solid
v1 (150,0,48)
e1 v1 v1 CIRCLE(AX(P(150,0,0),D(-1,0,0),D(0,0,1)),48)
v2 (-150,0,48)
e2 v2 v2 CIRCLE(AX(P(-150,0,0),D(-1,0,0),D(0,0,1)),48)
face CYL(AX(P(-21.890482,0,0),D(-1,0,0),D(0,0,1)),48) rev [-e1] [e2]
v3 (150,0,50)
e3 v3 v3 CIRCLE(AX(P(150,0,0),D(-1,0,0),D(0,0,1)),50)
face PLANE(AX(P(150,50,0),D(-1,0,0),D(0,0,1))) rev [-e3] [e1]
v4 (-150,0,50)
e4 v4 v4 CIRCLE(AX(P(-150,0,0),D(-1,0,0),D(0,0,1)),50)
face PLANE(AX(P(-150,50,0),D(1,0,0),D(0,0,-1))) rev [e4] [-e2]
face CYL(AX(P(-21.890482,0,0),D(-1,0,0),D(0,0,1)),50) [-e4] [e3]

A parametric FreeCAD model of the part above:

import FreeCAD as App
import Part
import Sketcher

V = App.Vector
Q = App.Units.Quantity

doc = App.newDocument("Part")
body = doc.addObject("PartDesign::Body", "Body")

# Sketch on XY plane
sketch1 = doc.addObject("Sketcher::SketchObject", "Sketch")
body.addObject(sketch1)
sketch1.AttachmentSupport = (doc.XY_Plane, [""])
sketch1.MapMode = "FlatFace"
sketch1.addGeometry(Part.LineSegment(V(-150, 50, 0), V(-150, 48, 0)), False)
sketch1.addGeometry(Part.LineSegment(V(-150, 48, 0), V(150, 48, 0)), False)
sketch1.addGeometry(Part.LineSegment(V(150, 48, 0), V(150, 50, 0)), False)
sketch1.addGeometry(Part.LineSegment(V(150, 50, 0), V(-150, 50, 0)), False)
sketch1.addConstraint(Sketcher.Constraint("Coincident", 0, 2, 1, 1))
sketch1.addConstraint(Sketcher.Constraint("Coincident", 1, 2, 2, 1))
sketch1.addConstraint(Sketcher.Constraint("Coincident", 2, 2, 3, 1))
sketch1.addConstraint(Sketcher.Constraint("Coincident", 3, 2, 0, 1))
sketch1.addConstraint(Sketcher.Constraint("Vertical", 0))
sketch1.addConstraint(Sketcher.Constraint("Horizontal", 1))
sketch1.addConstraint(Sketcher.Constraint("Vertical", 2))
sketch1.addConstraint(Sketcher.Constraint("Horizontal", 3))
sketch1.addConstraint(Sketcher.Constraint("DistanceX", 1, 1, 1, 2, Q("300 mm")))
sketch1.addConstraint(Sketcher.Constraint("DistanceY", 0, 2, 0, 1, Q("2 mm")))
sketch1.addConstraint(Sketcher.Constraint("DistanceX", 0, 2, -1, 1, Q("150 mm")))
sketch1.addConstraint(Sketcher.Constraint("DistanceY", -1, 1, 0, 2, Q("48 mm")))
revolution = doc.addObject("PartDesign::Revolution", "Revolution")
body.addObject(revolution)
revolution.Profile = sketch1
revolution.ReferenceAxis = (sketch1, ["H_Axis"])
revolution.Angle = 360

doc.recompute()
